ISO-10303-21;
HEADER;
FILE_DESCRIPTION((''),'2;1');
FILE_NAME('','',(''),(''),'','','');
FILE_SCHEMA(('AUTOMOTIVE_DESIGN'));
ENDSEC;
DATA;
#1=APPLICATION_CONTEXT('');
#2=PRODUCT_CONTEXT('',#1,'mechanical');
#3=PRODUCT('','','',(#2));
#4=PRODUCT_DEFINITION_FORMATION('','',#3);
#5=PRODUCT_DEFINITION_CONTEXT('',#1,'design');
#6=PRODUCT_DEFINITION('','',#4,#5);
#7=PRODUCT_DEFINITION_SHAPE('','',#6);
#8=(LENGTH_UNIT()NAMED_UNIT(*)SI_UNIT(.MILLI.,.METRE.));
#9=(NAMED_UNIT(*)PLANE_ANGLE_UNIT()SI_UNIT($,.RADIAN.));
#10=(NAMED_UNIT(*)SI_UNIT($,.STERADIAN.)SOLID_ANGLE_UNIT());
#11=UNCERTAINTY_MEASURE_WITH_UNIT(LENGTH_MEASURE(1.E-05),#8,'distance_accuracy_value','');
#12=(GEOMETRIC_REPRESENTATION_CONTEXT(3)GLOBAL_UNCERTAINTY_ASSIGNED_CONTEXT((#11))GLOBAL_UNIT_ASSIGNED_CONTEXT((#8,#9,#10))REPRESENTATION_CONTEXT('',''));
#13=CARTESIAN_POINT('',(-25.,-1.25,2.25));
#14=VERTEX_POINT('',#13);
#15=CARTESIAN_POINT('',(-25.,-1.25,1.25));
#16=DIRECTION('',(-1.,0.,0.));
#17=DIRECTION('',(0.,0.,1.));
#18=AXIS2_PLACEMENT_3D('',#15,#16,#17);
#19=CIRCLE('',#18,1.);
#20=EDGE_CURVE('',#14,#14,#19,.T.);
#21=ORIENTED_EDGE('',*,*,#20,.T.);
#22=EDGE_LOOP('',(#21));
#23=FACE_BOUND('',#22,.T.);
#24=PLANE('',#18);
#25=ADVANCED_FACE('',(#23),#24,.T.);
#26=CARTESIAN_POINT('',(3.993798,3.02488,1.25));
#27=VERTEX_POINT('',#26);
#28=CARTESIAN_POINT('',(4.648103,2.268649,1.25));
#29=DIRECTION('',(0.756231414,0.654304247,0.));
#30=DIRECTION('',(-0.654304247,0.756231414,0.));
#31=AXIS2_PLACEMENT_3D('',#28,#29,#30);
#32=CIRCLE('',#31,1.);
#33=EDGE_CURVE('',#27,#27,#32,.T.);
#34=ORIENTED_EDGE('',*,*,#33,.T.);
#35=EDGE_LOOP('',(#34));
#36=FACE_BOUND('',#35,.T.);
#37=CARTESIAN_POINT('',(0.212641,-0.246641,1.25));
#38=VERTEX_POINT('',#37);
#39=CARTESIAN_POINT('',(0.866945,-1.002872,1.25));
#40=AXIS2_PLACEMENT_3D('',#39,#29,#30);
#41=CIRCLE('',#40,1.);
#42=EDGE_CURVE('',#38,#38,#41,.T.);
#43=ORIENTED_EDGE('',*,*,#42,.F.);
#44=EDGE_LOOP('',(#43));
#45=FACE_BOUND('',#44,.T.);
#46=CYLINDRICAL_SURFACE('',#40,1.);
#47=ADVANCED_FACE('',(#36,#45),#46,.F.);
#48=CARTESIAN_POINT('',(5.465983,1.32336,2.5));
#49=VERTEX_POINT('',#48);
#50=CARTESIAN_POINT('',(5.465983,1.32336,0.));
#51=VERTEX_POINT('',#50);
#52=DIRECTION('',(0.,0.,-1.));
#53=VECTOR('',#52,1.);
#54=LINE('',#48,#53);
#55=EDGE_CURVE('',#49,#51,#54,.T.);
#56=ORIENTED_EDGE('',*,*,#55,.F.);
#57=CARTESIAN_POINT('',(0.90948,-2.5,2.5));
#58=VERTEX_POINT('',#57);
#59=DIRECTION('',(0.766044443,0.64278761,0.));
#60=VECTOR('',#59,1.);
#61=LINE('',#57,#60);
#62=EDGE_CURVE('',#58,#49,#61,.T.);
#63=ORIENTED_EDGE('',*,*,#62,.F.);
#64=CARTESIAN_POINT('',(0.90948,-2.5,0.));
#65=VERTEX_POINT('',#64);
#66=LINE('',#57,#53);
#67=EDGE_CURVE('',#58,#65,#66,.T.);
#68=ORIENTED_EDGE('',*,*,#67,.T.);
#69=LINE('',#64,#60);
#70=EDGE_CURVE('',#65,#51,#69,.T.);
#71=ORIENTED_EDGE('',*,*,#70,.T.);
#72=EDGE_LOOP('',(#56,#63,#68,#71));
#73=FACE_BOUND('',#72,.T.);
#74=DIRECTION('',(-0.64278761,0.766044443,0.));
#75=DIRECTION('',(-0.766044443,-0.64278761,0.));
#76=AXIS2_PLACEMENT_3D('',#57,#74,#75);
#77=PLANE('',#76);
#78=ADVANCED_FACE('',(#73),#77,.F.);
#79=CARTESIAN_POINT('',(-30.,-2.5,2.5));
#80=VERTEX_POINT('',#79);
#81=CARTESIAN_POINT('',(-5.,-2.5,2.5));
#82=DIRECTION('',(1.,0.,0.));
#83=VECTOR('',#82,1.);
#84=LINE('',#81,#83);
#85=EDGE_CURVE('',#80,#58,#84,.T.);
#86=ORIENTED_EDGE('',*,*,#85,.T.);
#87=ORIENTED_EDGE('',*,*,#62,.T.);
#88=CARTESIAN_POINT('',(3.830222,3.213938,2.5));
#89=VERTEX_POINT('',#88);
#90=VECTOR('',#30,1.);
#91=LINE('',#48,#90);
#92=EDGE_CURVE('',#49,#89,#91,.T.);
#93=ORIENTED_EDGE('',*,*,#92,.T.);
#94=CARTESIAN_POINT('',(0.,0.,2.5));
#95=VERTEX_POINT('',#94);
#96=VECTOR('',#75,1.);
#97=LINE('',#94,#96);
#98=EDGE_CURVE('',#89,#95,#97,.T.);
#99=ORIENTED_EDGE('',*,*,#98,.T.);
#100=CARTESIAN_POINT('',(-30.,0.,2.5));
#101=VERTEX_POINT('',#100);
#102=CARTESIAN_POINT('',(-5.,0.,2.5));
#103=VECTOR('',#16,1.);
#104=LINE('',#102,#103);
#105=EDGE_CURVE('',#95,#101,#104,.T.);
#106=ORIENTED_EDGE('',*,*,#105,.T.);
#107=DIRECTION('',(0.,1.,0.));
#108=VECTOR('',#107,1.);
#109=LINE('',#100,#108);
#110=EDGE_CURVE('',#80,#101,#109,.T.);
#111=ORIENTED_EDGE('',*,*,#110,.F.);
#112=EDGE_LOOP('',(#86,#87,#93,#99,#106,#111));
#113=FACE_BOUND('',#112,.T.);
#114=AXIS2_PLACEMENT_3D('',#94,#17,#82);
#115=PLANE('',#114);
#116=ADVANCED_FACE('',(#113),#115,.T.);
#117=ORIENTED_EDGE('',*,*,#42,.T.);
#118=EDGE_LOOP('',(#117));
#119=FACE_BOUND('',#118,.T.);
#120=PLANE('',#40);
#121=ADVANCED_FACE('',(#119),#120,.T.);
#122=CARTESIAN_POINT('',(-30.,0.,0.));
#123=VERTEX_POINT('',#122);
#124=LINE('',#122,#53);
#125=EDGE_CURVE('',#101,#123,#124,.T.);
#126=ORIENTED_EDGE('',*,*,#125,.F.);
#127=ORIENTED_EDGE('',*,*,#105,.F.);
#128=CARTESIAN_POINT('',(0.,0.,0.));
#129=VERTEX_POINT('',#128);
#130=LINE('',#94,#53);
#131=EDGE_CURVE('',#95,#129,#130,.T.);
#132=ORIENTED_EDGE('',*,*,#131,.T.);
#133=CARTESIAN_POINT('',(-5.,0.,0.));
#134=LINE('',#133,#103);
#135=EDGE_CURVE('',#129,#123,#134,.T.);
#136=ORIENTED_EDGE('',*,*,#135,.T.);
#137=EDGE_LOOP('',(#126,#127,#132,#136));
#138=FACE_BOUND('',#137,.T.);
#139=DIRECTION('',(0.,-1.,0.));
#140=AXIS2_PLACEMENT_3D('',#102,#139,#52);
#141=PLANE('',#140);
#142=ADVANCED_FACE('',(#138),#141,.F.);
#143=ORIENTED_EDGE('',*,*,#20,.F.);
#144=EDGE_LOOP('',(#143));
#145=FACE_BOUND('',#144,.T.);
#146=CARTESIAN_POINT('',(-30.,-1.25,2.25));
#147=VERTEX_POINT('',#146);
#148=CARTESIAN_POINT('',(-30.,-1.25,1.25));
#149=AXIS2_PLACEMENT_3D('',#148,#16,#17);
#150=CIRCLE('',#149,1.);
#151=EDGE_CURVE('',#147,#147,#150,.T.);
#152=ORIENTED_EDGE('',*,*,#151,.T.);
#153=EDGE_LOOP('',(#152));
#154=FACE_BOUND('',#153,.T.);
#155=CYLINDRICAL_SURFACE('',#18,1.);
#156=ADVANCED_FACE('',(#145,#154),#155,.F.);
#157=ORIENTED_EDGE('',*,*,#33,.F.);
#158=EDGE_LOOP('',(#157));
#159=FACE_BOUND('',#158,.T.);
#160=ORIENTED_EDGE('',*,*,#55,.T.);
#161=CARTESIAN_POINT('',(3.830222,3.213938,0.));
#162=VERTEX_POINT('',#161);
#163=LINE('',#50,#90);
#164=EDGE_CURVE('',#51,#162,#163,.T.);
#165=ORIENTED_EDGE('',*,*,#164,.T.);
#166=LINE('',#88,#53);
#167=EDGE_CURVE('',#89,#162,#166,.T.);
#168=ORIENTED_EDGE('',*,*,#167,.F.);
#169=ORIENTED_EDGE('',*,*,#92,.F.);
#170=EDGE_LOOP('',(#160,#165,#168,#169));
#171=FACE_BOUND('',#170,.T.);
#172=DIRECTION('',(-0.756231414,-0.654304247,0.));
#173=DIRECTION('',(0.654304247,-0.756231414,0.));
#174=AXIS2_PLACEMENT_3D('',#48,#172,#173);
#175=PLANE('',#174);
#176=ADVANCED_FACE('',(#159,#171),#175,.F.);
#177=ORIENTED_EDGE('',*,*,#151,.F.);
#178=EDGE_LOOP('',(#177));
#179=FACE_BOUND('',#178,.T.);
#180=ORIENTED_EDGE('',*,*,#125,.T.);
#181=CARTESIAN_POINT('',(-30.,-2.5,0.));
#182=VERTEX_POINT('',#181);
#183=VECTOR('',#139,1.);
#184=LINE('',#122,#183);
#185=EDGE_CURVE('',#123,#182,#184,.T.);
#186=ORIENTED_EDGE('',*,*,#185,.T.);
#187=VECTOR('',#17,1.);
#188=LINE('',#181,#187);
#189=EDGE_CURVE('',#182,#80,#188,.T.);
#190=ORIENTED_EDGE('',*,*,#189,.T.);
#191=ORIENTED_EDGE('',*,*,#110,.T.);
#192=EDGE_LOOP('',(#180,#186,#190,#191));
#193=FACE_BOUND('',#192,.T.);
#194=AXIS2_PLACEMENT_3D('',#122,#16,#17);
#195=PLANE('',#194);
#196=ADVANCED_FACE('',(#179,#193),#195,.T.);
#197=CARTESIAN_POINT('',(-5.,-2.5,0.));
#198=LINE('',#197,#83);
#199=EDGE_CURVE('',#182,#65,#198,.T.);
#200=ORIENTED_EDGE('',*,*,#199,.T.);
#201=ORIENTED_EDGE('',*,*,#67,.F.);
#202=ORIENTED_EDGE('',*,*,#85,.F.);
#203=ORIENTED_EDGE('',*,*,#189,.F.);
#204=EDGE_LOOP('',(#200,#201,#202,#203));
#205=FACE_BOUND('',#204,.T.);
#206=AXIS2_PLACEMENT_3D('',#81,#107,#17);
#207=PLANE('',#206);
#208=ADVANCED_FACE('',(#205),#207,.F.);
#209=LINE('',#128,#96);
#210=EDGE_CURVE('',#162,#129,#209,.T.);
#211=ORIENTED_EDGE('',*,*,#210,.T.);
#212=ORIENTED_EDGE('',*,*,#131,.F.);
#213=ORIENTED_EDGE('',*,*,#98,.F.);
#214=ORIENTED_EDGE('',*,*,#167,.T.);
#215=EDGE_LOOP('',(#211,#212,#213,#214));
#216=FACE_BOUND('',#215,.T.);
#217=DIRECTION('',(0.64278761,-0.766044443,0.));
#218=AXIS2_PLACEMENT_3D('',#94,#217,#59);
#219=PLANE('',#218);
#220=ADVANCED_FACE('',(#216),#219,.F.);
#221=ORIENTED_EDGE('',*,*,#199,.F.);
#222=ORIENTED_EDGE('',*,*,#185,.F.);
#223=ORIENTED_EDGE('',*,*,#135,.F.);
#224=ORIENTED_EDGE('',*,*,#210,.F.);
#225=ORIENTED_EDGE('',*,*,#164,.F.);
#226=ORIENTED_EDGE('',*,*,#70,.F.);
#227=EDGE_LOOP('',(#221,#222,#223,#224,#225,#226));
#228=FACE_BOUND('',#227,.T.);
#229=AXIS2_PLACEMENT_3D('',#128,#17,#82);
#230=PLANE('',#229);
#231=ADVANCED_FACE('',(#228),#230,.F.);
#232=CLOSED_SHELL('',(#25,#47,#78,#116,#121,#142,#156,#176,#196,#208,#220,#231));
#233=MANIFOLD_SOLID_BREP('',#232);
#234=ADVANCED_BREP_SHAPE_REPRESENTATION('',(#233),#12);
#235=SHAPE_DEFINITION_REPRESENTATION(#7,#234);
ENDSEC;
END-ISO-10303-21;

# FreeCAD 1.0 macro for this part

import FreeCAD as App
import Part
import Sketcher
Q = App.Units.Quantity


def add_polygon(sketch, points):
    """Adds a closed chain of lines whose ends are joined by coincident constraints."""
    first, n = sketch.GeometryCount, len(points)
    for a, b in zip(points, points[1:] + points[:1]):
        sketch.addGeometry(Part.LineSegment(App.Vector(*a, 0), App.Vector(*b, 0)), False)
    for i in range(n):
        sketch.addConstraint(Sketcher.Constraint("Coincident", first + i, 2, first + (i + 1) % n, 1))

doc = App.newDocument("Part")
body = doc.addObject("PartDesign::Body", "Body")

# Sketch on XY plane
sketch1 = body.newObject("Sketcher::SketchObject", "Sketch")
sketch1.AttachmentSupport = (doc.getObject("XY_Plane"), [""])
sketch1.MapMode = "FlatFace"
add_polygon(sketch1, [(0, 0), (-5, 0), (-5, -2.5), (0.9, -2.5), (5.5, 1.3), (3.8, 3.2)])  # lines 0-5
sketch1.addConstraint(Sketcher.Constraint("Horizontal", 0))
sketch1.addConstraint(Sketcher.Constraint("Vertical", 1))
sketch1.addConstraint(Sketcher.Constraint("Horizontal", 2))
sketch1.addConstraint(Sketcher.Constraint("Coincident", 5, 2, -1, 1))
sketch1.addConstraint(Sketcher.Constraint("Parallel", 3, 5))
sketch1.addConstraint(Sketcher.Constraint("DistanceX", 0, 2, 0, 1, 5.0))
sketch1.addConstraint(Sketcher.Constraint("Angle", 3, Q("40 deg")))
sketch1.addConstraint(Sketcher.Constraint("Distance", 5, 5.0))
sketch1.addConstraint(Sketcher.Constraint("DistanceY", 1, 2, 1, 1, 2.5))
sketch1.addConstraint(Sketcher.Constraint("Distance", 4, 2.5))
sketch1.addConstraint(Sketcher.Constraint("DistanceX", 2, 1, 2, 2, 5.90948))
pad1 = body.newObject("PartDesign::Pad", "Pad")
pad1.Profile = sketch1
pad1.Length = 2.5

# Sketch on an angled plane
sketch2 = body.newObject("Sketcher::SketchObject", "Sketch001")
sketch2.Placement = App.Placement(App.Vector(3.780724, 3.271147, 0), App.Rotation(App.Vector(0, 0, -1), App.Vector(-0.654304247, 0.756231414, 0), App.Vector(0.756231414, 0.654304247, 0), "ZXY"))
sketch2.addGeometry(Part.Circle(App.Vector(-1.2, -1.3, 0), App.Vector(0, 0, 1), 1), False)
sketch2.addConstraint(Sketcher.Constraint("Diameter", 0, 2.0))
sketch2.addConstraint(Sketcher.Constraint("DistanceX", 0, 3, -1, 1, 1.25))
sketch2.addConstraint(Sketcher.Constraint("DistanceY", 0, 3, -1, 1, 1.32565))
pocket1 = body.newObject("PartDesign::Pocket", "Pocket")
pocket1.Profile = sketch2
pocket1.Length = 5

# Sketch on YZ plane
sketch3 = body.newObject("Sketcher::SketchObject", "Sketch002")
sketch3.AttachmentSupport = (doc.getObject("YZ_Plane"), [""])
sketch3.MapMode = "FlatFace"
sketch3.AttachmentOffset = App.Placement(App.Vector(0, 0, -5), App.Rotation())
sketch3.addGeometry(Part.Circle(App.Vector(-1.2, 1.2, 0), App.Vector(0, 0, 1), 1), False)
sketch3.addConstraint(Sketcher.Constraint("Diameter", 0, 2.0))
sketch3.addConstraint(Sketcher.Constraint("DistanceX", 0, 3, -1, 1, 1.25))
sketch3.addConstraint(Sketcher.Constraint("DistanceY", -1, 1, 0, 3, 1.25))
pocket2 = body.newObject("PartDesign::Pocket", "Pocket001")
pocket2.Profile = sketch3
pocket2.Length = 5
pocket2.Reversed = True

# Sketch on YZ plane
sketch4 = body.newObject("Sketcher::SketchObject", "Sketch003")
sketch4.AttachmentSupport = (doc.getObject("YZ_Plane"), [""])
sketch4.MapMode = "FlatFace"
sketch4.AttachmentOffset = App.Placement(App.Vector(0, 0, -5), App.Rotation())
sketch4.addGeometry(Part.Circle(App.Vector(-1.2, 1.2, 0), App.Vector(0, 0, 1), 1), False)
sketch4.addConstraint(Sketcher.Constraint("Diameter", 0, 2.0))
sketch4.addConstraint(Sketcher.Constraint("DistanceX", 0, 3, -1, 1, 1.25))
sketch4.addConstraint(Sketcher.Constraint("DistanceY", -1, 1, 0, 3, 1.25))
pad2 = body.newObject("PartDesign::Pad", "Pad001")
pad2.Profile = sketch4
pad2.Length = 5

# Sketch on YZ plane
sketch5 = body.newObject("Sketcher::SketchObject", "Sketch004")
sketch5.AttachmentSupport = (doc.getObject("YZ_Plane"), [""])
sketch5.MapMode = "FlatFace"
sketch5.AttachmentOffset = App.Placement(App.Vector(0, 0, -5), App.Rotation())
add_polygon(sketch5, [(0, 0), (-2.5, 0), (-2.5, 2.5), (0, 2.5)])  # lines 0-3
sketch5.addConstraint(Sketcher.Constraint("Horizontal", 0))
sketch5.addConstraint(Sketcher.Constraint("Vertical", 1))
sketch5.addConstraint(Sketcher.Constraint("Horizontal", 2))
sketch5.addConstraint(Sketcher.Constraint("Vertical", 3))
sketch5.addConstraint(Sketcher.Constraint("Coincident", 3, 2, -1, 1))
sketch5.addConstraint(Sketcher.Constraint("Equal", 2, 1))
sketch5.addConstraint(Sketcher.Constraint("DistanceX", 0, 2, 0, 1, 2.5))
pad3 = body.newObject("PartDesign::Pad", "Pad002")
pad3.Profile = sketch5
pad3.Length = 25
pad3.Reversed = True

# Sketch on YZ plane
sketch6 = body.newObject("Sketcher::SketchObject", "Sketch005")
sketch6.AttachmentSupport = (doc.getObject("YZ_Plane"), [""])
sketch6.MapMode = "FlatFace"
sketch6.AttachmentOffset = App.Placement(App.Vector(0, 0, -30), App.Rotation())
sketch6.addGeometry(Part.Circle(App.Vector(-1.2, 1.2, 0), App.Vector(0, 0, 1), 1), False)
sketch6.addConstraint(Sketcher.Constraint("Diameter", 0, 2.0))
sketch6.addConstraint(Sketcher.Constraint("DistanceX", 0, 3, -1, 1, 1.25))
sketch6.addConstraint(Sketcher.Constraint("DistanceY", -1, 1, 0, 3, 1.25))
pocket3 = body.newObject("PartDesign::Pocket", "Pocket002")
pocket3.Profile = sketch6
pocket3.Length = 5
pocket3.Reversed = True

doc.recompute()
